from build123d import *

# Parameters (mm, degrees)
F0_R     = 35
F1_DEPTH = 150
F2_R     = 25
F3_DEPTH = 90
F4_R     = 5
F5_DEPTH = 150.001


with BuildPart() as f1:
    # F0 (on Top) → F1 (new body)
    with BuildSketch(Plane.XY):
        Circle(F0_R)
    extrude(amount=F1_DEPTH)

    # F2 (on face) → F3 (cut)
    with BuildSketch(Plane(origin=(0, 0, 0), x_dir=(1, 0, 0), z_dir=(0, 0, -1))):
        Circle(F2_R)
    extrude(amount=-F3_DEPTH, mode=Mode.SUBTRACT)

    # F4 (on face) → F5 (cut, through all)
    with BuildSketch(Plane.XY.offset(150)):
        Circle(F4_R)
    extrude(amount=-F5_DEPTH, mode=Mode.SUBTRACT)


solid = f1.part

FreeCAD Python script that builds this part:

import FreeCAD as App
import Part
import Sketcher
from FreeCAD import Vector
Q = App.Units.Quantity

doc = App.newDocument("Part")
body = doc.addObject("PartDesign::Body", "Body")

# Sketch on XY plane
sketch1 = body.newObject("Sketcher::SketchObject", "Sketch")
sketch1.AttachmentSupport = (doc.getObject("XY_Plane"), [""])
sketch1.MapMode = "FlatFace"
sketch1.addGeometry(Part.Circle(Vector(0, 0, 0), Vector(0, 0, 1), 35), False)
sketch1.addConstraint(Sketcher.Constraint("Coincident", 0, 3, -1, 1))
sketch1.addConstraint(Sketcher.Constraint("Diameter", 0, Q("70 mm")))
pad1 = body.newObject("PartDesign::Pad", "Pad")
pad1.Profile = sketch1
pad1.Length = 150

# Sketch on XY plane
sketch2 = body.newObject("Sketcher::SketchObject", "Sketch001")
sketch2.AttachmentSupport = (doc.getObject("XY_Plane"), [""])
sketch2.MapMode = "FlatFace"
sketch2.addGeometry(Part.Circle(Vector(0, 0, 0), Vector(0, 0, 1), 25), False)
sketch2.addConstraint(Sketcher.Constraint("Coincident", 0, 3, -1, 1))
sketch2.addConstraint(Sketcher.Constraint("Diameter", 0, Q("50 mm")))
pocket1 = body.newObject("PartDesign::Pocket", "Pocket")
pocket1.Profile = sketch2
pocket1.Length = 90
pocket1.Reversed = True

# Sketch on XY plane
sketch3 = body.newObject("Sketcher::SketchObject", "Sketch002")
sketch3.AttachmentSupport = (doc.getObject("XY_Plane"), [""])
sketch3.MapMode = "FlatFace"
sketch3.AttachmentOffset = App.Placement(Vector(0, 0, 150), App.Rotation())
sketch3.addGeometry(Part.Circle(Vector(0, 0, 0), Vector(0, 0, 1), 5), False)
sketch3.addConstraint(Sketcher.Constraint("Coincident", 0, 3, -1, 1))
sketch3.addConstraint(Sketcher.Constraint("Diameter", 0, Q("10 mm")))
pocket2 = body.newObject("PartDesign::Pocket", "Pocket001")
pocket2.Profile = sketch3
pocket2.Type = "ThroughAll"

doc.recompute()
